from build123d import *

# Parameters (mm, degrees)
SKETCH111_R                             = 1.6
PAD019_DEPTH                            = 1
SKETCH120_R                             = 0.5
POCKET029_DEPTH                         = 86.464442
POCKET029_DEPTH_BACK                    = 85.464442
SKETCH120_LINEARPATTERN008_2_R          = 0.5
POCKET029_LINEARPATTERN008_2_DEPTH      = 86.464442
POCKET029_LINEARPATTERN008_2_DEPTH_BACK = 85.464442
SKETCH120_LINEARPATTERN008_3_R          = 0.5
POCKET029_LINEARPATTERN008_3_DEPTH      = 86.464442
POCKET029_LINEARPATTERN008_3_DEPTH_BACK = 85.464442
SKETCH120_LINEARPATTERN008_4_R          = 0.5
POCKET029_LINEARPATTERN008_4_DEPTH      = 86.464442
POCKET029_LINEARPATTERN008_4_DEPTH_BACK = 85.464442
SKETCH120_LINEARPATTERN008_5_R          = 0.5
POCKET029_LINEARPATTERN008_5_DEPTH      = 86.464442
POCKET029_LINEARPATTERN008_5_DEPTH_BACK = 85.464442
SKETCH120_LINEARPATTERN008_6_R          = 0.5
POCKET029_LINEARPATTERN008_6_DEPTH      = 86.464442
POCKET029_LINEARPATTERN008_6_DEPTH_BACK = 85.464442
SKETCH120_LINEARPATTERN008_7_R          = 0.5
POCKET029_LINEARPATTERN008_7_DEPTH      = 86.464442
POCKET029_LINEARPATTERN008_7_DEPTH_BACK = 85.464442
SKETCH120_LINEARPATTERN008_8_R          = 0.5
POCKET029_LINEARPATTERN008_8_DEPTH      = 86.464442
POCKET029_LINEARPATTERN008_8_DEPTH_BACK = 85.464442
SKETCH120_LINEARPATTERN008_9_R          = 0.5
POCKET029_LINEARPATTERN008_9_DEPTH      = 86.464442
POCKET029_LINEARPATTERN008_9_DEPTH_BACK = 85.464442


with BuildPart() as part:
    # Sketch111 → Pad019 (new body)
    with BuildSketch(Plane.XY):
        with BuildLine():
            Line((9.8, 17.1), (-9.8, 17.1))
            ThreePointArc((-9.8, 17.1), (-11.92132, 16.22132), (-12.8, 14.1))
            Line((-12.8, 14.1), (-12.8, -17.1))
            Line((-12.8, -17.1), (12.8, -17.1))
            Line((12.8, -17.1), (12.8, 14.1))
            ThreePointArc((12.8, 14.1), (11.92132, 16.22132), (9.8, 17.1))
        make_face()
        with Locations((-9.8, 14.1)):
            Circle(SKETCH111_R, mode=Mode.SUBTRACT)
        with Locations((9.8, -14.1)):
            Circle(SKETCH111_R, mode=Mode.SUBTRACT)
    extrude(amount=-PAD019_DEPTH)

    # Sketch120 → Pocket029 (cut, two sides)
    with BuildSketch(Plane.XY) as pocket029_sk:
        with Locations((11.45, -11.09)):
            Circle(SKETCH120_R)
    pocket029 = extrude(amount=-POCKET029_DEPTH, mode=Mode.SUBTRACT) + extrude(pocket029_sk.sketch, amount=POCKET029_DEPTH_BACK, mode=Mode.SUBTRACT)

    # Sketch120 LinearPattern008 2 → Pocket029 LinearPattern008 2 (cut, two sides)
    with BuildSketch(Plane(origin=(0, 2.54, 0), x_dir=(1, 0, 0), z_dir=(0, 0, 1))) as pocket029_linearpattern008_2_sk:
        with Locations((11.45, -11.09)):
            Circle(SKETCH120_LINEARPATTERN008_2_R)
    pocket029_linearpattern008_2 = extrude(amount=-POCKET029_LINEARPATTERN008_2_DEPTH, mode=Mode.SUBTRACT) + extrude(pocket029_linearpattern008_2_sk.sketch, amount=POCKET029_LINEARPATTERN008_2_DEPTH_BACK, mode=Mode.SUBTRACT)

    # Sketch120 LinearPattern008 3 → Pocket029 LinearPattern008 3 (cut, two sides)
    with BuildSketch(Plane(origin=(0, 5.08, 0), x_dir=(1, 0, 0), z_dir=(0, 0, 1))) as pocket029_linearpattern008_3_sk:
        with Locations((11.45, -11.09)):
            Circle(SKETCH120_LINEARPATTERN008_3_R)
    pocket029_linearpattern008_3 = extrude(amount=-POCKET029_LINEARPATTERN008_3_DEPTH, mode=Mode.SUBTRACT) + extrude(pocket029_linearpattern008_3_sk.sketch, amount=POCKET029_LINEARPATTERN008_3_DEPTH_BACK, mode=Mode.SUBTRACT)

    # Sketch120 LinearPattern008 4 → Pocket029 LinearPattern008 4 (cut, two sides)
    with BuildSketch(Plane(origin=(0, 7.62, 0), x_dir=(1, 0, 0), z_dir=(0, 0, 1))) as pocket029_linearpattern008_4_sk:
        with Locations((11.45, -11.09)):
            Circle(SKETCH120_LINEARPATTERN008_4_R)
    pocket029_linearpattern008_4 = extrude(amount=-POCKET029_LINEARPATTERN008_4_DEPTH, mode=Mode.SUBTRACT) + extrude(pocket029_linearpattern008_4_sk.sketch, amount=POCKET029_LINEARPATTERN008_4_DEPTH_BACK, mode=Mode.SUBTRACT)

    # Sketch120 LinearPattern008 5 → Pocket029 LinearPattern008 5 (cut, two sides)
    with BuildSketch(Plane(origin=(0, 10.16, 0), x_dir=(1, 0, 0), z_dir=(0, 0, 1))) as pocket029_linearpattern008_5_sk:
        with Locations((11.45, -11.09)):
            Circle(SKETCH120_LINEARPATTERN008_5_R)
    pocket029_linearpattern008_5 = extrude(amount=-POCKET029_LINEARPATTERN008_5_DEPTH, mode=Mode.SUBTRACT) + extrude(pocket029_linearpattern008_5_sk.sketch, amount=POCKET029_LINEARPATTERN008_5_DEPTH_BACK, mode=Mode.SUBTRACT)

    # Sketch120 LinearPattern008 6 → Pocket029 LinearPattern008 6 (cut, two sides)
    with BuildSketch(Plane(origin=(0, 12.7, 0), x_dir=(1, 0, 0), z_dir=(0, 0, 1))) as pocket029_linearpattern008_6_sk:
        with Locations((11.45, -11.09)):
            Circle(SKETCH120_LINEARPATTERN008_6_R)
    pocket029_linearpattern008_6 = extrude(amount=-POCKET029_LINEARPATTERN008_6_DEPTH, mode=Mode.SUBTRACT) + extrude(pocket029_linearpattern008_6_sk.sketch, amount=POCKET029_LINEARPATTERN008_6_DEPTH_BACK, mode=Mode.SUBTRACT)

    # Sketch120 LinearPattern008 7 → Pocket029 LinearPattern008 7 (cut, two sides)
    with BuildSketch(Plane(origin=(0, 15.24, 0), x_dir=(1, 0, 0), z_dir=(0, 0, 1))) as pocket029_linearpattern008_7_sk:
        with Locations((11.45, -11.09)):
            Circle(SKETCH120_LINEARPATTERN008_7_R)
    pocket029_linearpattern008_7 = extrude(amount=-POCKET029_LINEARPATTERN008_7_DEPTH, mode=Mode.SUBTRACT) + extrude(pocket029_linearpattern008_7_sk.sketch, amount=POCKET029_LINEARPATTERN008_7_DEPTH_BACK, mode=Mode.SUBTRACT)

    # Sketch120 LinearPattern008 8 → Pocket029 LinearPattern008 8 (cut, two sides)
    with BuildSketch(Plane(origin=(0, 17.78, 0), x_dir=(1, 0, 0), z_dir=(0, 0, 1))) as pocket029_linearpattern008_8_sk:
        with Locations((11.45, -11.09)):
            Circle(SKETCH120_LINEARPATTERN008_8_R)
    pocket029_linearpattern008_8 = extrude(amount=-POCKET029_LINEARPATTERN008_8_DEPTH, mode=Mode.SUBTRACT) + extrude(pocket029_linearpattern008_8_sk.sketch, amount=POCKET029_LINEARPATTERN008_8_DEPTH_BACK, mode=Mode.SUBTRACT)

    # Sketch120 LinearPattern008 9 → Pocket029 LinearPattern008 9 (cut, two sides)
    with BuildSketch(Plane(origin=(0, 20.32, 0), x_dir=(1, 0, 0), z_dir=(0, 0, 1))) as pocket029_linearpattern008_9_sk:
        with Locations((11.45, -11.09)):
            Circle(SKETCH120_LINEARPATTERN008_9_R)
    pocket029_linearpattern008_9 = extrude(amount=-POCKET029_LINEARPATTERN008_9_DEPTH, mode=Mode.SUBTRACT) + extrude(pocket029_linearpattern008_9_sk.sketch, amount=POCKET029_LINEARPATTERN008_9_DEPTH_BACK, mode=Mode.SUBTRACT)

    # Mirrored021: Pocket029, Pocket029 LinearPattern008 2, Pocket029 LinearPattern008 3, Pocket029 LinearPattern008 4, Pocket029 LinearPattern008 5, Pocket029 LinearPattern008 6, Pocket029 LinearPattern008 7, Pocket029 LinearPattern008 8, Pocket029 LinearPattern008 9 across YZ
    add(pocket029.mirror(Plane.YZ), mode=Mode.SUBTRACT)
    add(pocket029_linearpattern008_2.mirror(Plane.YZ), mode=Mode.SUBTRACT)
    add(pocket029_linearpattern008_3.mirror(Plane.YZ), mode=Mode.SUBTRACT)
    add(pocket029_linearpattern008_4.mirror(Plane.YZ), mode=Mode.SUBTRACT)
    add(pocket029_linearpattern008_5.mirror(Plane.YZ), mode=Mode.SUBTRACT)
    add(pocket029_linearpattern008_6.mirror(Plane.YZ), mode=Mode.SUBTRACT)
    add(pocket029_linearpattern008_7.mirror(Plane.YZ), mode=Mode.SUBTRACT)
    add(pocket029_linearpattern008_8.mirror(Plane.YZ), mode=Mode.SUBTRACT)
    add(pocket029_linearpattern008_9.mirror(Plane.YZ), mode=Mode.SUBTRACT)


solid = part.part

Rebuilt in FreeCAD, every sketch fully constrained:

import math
import FreeCAD as App
import Part
import Sketcher
Q = App.Units.Quantity

doc = App.newDocument("Part")
params = doc.addObject("Spreadsheet::Sheet", "Params")
for row, (alias, value) in enumerate([
    ("sketch1_radius", "3.000001 mm"),
    ("sketch1_diameter", "3.2 mm"),
    ("sketch1_width", "19.6 mm"),
    ("sketch1_height", "31.2 mm"),
    ("pad1_length", "1 mm"),
    ("sketch2_diameter", "1 mm"),
    ("sketch3_diameter", "1 mm"),
    ("sketch4_diameter", "1 mm"),
    ("sketch5_diameter", "1 mm"),
    ("sketch6_diameter", "1 mm"),
    ("sketch7_diameter", "1 mm"),
    ("sketch8_diameter", "1 mm"),
    ("sketch9_diameter", "1 mm"),
    ("sketch10_diameter", "1 mm"),
], start=1):
    params.set(f"A{row}", alias)
    params.set(f"B{row}", "=" + value)
    params.setAlias(f"B{row}", alias)

body = doc.addObject("PartDesign::Body", "Body")

# Sketch on XY plane
sketch1 = body.newObject("Sketcher::SketchObject", "Sketch")
sketch1.AttachmentSupport = (doc.getObject("XY_Plane"), [""])
sketch1.MapMode = "FlatFace"
sketch1.addGeometry(Part.LineSegment(App.Vector(9.8, 17.1, 0), App.Vector(-9.8, 17.1, 0)), False)
sketch1.addGeometry(Part.ArcOfCircle(Part.Circle(App.Vector(-9.8, 14.1, 0), App.Vector(0, 0, 1), 3), math.radians(90), math.radians(180)), False)
sketch1.addGeometry(Part.LineSegment(App.Vector(-12.8, 14.1, 0), App.Vector(-12.8, -17.1, 0)), False)
sketch1.addGeometry(Part.LineSegment(App.Vector(-12.8, -17.1, 0), App.Vector(12.8, -17.1, 0)), False)
sketch1.addGeometry(Part.LineSegment(App.Vector(12.8, -17.1, 0), App.Vector(12.8, 14.1, 0)), False)
sketch1.addGeometry(Part.ArcOfCircle(Part.Circle(App.Vector(9.8, 14.1, 0), App.Vector(0, 0, 1), 3), math.radians(0), math.radians(90)), False)
sketch1.addGeometry(Part.Circle(App.Vector(9.8, -14.1, 0), App.Vector(0, 0, 1), 1.6), False)
sketch1.addGeometry(Part.Circle(App.Vector(-9.8, 14.1, 0), App.Vector(0, 0, 1), 1.6), False)
sketch1.addConstraint(Sketcher.Constraint("Tangent", 0, 2, 1, 1))
sketch1.addConstraint(Sketcher.Constraint("Tangent", 1, 2, 2, 1))
sketch1.addConstraint(Sketcher.Constraint("Coincident", 2, 2, 3, 1))
sketch1.addConstraint(Sketcher.Constraint("Coincident", 3, 2, 4, 1))
sketch1.addConstraint(Sketcher.Constraint("Tangent", 4, 2, 5, 1))
sketch1.addConstraint(Sketcher.Constraint("Tangent", 5, 2, 0, 1))
sketch1.addConstraint(Sketcher.Constraint("Horizontal", 0))
sketch1.addConstraint(Sketcher.Constraint("Vertical", 2))
sketch1.addConstraint(Sketcher.Constraint("Horizontal", 3))
sketch1.addConstraint(Sketcher.Constraint("Vertical", 4))
sketch1.addConstraint(Sketcher.Constraint("Coincident", 7, 3, 1, 3))
sketch1.addConstraint(Sketcher.Constraint("Equal", 1, 5))
sketch1.addConstraint(Sketcher.Constraint("Equal", 6, 7))
sketch1.addConstraint(Sketcher.Constraint("Symmetric", 1, 3, 6, 3, -1, 1))
sketch1.addConstraint(Sketcher.Constraint("Vertical", 5, 3, 6, 3))
sketch1.addConstraint(Sketcher.Constraint("Radius", 1, Q("3.000001 mm")))
sketch1.addConstraint(Sketcher.Constraint("Diameter", 6, Q("3.2 mm")))
sketch1.addConstraint(Sketcher.Constraint("DistanceX", 0, 2, 0, 1, Q("19.6 mm")))
sketch1.addConstraint(Sketcher.Constraint("DistanceY", 2, 2, 2, 1, Q("31.2 mm")))
sketch1.addConstraint(Sketcher.Constraint("DistanceY", 2, 2, 6, 3, Q("3 mm")))
sketch1.setExpression("Constraints[15]", "Params.sketch1_radius")
sketch1.setExpression("Constraints[16]", "Params.sketch1_diameter")
sketch1.setExpression("Constraints[17]", "Params.sketch1_width")
sketch1.setExpression("Constraints[18]", "Params.sketch1_height")
pad1 = body.newObject("PartDesign::Pad", "Pad")
pad1.Profile = sketch1
pad1.setExpression("Length", "Params.pad1_length")
pad1.Reversed = True

# Sketch on XY plane
sketch2 = body.newObject("Sketcher::SketchObject", "Sketch001")
sketch2.AttachmentSupport = (doc.getObject("XY_Plane"), [""])
sketch2.MapMode = "FlatFace"
sketch2.addGeometry(Part.Circle(App.Vector(11.4, -11.1, 0), App.Vector(0, 0, 1), 0.5), False)
sketch2.addConstraint(Sketcher.Constraint("Diameter", 0, Q("1 mm")))
sketch2.addConstraint(Sketcher.Constraint("DistanceX", -1, 1, 0, 3, Q("11.45 mm")))
sketch2.addConstraint(Sketcher.Constraint("DistanceY", 0, 3, -1, 1, Q("11.09 mm")))
sketch2.setExpression("Constraints[0]", "Params.sketch2_diameter")
pocket1 = body.newObject("PartDesign::Pocket", "Pocket")
pocket1.Profile = sketch2
pocket1.Type = "ThroughAll"
pocket1.Midplane = True

# Sketch on XY plane
sketch3 = body.newObject("Sketcher::SketchObject", "Sketch002")
sketch3.AttachmentSupport = (doc.getObject("XY_Plane"), [""])
sketch3.MapMode = "FlatFace"
sketch3.addGeometry(Part.Circle(App.Vector(11.4, -8.6, 0), App.Vector(0, 0, 1), 0.5), False)
sketch3.addConstraint(Sketcher.Constraint("Diameter", 0, Q("1 mm")))
sketch3.addConstraint(Sketcher.Constraint("DistanceX", -1, 1, 0, 3, Q("11.45 mm")))
sketch3.addConstraint(Sketcher.Constraint("DistanceY", 0, 3, -1, 1, Q("8.55 mm")))
sketch3.setExpression("Constraints[0]", "Params.sketch3_diameter")
pocket2 = body.newObject("PartDesign::Pocket", "Pocket001")
pocket2.Profile = sketch3
pocket2.Type = "ThroughAll"
pocket2.Midplane = True

# Sketch on XY plane
sketch4 = body.newObject("Sketcher::SketchObject", "Sketch003")
sketch4.AttachmentSupport = (doc.getObject("XY_Plane"), [""])
sketch4.MapMode = "FlatFace"
sketch4.addGeometry(Part.Circle(App.Vector(11.4, -6, 0), App.Vector(0, 0, 1), 0.5), False)
sketch4.addConstraint(Sketcher.Constraint("Diameter", 0, Q("1 mm")))
sketch4.addConstraint(Sketcher.Constraint("DistanceX", -1, 1, 0, 3, Q("11.45 mm")))
sketch4.addConstraint(Sketcher.Constraint("DistanceY", 0, 3, -1, 1, Q("6.01 mm")))
sketch4.setExpression("Constraints[0]", "Params.sketch4_diameter")
pocket3 = body.newObject("PartDesign::Pocket", "Pocket002")
pocket3.Profile = sketch4
pocket3.Type = "ThroughAll"
pocket3.Midplane = True

# Sketch on XY plane
sketch5 = body.newObject("Sketcher::SketchObject", "Sketch004")
sketch5.AttachmentSupport = (doc.getObject("XY_Plane"), [""])
sketch5.MapMode = "FlatFace"
sketch5.addGeometry(Part.Circle(App.Vector(11.4, -3.5, 0), App.Vector(0, 0, 1), 0.5), False)
sketch5.addConstraint(Sketcher.Constraint("Diameter", 0, Q("1 mm")))
sketch5.addConstraint(Sketcher.Constraint("DistanceX", -1, 1, 0, 3, Q("11.45 mm")))
sketch5.addConstraint(Sketcher.Constraint("DistanceY", 0, 3, -1, 1, Q("3.47 mm")))
sketch5.setExpression("Constraints[0]", "Params.sketch5_diameter")
pocket4 = body.newObject("PartDesign::Pocket", "Pocket003")
pocket4.Profile = sketch5
pocket4.Type = "ThroughAll"
pocket4.Midplane = True

# Sketch on XY plane
sketch6 = body.newObject("Sketcher::SketchObject", "Sketch005")
sketch6.AttachmentSupport = (doc.getObject("XY_Plane"), [""])
sketch6.MapMode = "FlatFace"
sketch6.addGeometry(Part.Circle(App.Vector(11.4, -0.9, 0), App.Vector(0, 0, 1), 0.5), False)
sketch6.addConstraint(Sketcher.Constraint("Diameter", 0, Q("1 mm")))
sketch6.addConstraint(Sketcher.Constraint("DistanceX", -1, 1, 0, 3, Q("11.45 mm")))
sketch6.addConstraint(Sketcher.Constraint("DistanceY", 0, 3, -1, 1, Q("0.93 mm")))
sketch6.setExpression("Constraints[0]", "Params.sketch6_diameter")
pocket5 = body.newObject("PartDesign::Pocket", "Pocket004")
pocket5.Profile = sketch6
pocket5.Type = "ThroughAll"
pocket5.Midplane = True

# Sketch on XY plane
sketch7 = body.newObject("Sketcher::SketchObject", "Sketch006")
sketch7.AttachmentSupport = (doc.getObject("XY_Plane"), [""])
sketch7.MapMode = "FlatFace"
sketch7.addGeometry(Part.Circle(App.Vector(11.4, 1.6, 0), App.Vector(0, 0, 1), 0.5), False)
sketch7.addConstraint(Sketcher.Constraint("Diameter", 0, Q("1 mm")))
sketch7.addConstraint(Sketcher.Constraint("DistanceX", -1, 1, 0, 3, Q("11.45 mm")))
sketch7.addConstraint(Sketcher.Constraint("DistanceY", -1, 1, 0, 3, Q("1.61 mm")))
sketch7.setExpression("Constraints[0]", "Params.sketch7_diameter")
pocket6 = body.newObject("PartDesign::Pocket", "Pocket005")
pocket6.Profile = sketch7
pocket6.Type = "ThroughAll"
pocket6.Midplane = True

# Sketch on XY plane
sketch8 = body.newObject("Sketcher::SketchObject", "Sketch007")
sketch8.AttachmentSupport = (doc.getObject("XY_Plane"), [""])
sketch8.MapMode = "FlatFace"
sketch8.addGeometry(Part.Circle(App.Vector(11.4, 4.2, 0), App.Vector(0, 0, 1), 0.5), False)
sketch8.addConstraint(Sketcher.Constraint("Diameter", 0, Q("1 mm")))
sketch8.addConstraint(Sketcher.Constraint("DistanceX", -1, 1, 0, 3, Q("11.45 mm")))
sketch8.addConstraint(Sketcher.Constraint("DistanceY", -1, 1, 0, 3, Q("4.15 mm")))
sketch8.setExpression("Constraints[0]", "Params.sketch8_diameter")
pocket7 = body.newObject("PartDesign::Pocket", "Pocket006")
pocket7.Profile = sketch8
pocket7.Type = "ThroughAll"
pocket7.Midplane = True

# Sketch on XY plane
sketch9 = body.newObject("Sketcher::SketchObject", "Sketch008")
sketch9.AttachmentSupport = (doc.getObject("XY_Plane"), [""])
sketch9.MapMode = "FlatFace"
sketch9.addGeometry(Part.Circle(App.Vector(11.4, 6.7, 0), App.Vector(0, 0, 1), 0.5), False)
sketch9.addConstraint(Sketcher.Constraint("Diameter", 0, Q("1 mm")))
sketch9.addConstraint(Sketcher.Constraint("DistanceX", -1, 1, 0, 3, Q("11.45 mm")))
sketch9.addConstraint(Sketcher.Constraint("DistanceY", -1, 1, 0, 3, Q("6.69 mm")))
sketch9.setExpression("Constraints[0]", "Params.sketch9_diameter")
pocket8 = body.newObject("PartDesign::Pocket", "Pocket007")
pocket8.Profile = sketch9
pocket8.Type = "ThroughAll"
pocket8.Midplane = True

# Sketch on XY plane
sketch10 = body.newObject("Sketcher::SketchObject", "Sketch009")
sketch10.AttachmentSupport = (doc.getObject("XY_Plane"), [""])
sketch10.MapMode = "FlatFace"
sketch10.addGeometry(Part.Circle(App.Vector(11.4, 9.2, 0), App.Vector(0, 0, 1), 0.5), False)
sketch10.addConstraint(Sketcher.Constraint("Diameter", 0, Q("1 mm")))
sketch10.addConstraint(Sketcher.Constraint("DistanceX", -1, 1, 0, 3, Q("11.45 mm")))
sketch10.addConstraint(Sketcher.Constraint("DistanceY", -1, 1, 0, 3, Q("9.23 mm")))
sketch10.setExpression("Constraints[0]", "Params.sketch10_diameter")
pocket9 = body.newObject("PartDesign::Pocket", "Pocket008")
pocket9.Profile = sketch10
pocket9.Type = "ThroughAll"
pocket9.Midplane = True
doc.recompute()

mirrored = body.newObject("PartDesign::Mirrored", "Mirrored")
mirrored.Originals = [pocket1, pocket2, pocket3, pocket4, pocket5, pocket6, pocket7, pocket8, pocket9]
mirrored.MirrorPlane = (doc.getObject("YZ_Plane"), [""])
body.Tip = mirrored

doc.recompute()
